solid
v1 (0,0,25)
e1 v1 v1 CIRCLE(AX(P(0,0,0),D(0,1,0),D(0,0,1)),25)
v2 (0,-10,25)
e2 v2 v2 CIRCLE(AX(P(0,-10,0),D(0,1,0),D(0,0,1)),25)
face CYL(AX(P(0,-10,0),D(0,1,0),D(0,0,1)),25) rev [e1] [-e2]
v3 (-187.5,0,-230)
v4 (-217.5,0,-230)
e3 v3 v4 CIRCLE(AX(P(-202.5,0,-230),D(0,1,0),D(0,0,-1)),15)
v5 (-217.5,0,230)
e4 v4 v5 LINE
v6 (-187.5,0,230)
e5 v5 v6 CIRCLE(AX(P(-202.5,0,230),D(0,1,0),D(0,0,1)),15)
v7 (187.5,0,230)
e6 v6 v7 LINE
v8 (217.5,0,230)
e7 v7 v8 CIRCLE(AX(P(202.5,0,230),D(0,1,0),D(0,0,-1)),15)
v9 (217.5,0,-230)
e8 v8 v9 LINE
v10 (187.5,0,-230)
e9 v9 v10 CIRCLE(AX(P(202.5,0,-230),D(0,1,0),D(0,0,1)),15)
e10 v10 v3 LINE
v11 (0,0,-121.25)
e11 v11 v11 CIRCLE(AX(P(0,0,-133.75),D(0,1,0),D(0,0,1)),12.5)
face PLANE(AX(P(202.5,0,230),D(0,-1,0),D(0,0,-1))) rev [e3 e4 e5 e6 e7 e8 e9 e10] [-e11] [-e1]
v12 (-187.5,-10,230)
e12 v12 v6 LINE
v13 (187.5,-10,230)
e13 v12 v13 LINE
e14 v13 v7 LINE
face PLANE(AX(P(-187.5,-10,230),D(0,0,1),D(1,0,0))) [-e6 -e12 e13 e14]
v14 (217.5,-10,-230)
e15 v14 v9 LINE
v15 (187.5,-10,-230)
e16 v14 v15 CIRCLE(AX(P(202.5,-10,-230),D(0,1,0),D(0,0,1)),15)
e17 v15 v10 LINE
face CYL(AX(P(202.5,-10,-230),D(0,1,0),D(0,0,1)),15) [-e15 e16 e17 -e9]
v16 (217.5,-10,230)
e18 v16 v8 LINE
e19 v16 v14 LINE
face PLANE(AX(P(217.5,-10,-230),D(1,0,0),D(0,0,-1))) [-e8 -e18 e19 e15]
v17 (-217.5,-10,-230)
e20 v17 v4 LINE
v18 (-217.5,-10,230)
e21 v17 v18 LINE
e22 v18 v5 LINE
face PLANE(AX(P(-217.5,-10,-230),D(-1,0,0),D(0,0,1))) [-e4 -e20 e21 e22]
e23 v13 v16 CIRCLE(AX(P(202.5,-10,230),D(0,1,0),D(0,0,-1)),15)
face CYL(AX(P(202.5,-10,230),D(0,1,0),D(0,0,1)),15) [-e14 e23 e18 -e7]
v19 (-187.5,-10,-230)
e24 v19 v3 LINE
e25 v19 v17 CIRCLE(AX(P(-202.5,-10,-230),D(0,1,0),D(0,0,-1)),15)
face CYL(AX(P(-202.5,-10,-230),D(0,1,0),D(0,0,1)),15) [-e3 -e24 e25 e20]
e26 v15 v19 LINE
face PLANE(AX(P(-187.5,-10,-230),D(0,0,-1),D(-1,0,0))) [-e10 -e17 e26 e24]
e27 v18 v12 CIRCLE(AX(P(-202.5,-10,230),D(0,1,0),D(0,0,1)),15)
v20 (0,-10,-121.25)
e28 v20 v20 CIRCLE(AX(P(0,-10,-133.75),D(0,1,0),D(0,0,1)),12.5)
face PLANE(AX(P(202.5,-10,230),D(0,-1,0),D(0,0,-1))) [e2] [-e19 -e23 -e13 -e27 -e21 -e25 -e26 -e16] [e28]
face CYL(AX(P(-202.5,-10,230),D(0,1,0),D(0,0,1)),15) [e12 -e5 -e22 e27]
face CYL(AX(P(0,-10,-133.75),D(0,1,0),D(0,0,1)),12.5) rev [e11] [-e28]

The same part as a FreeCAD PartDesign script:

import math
import FreeCAD as App
import Part
import Sketcher
from FreeCAD import Vector

doc = App.newDocument("Part")
body = doc.addObject("PartDesign::Body", "Body")

sketch1 = body.newObject("Sketcher::SketchObject", "Sketch")
sketch1.AttachmentSupport = (doc.getObject("XZ_Plane"), [""])
sketch1.MapMode = "FlatFace"
sketch1.addGeometry([
    Part.LineSegment(Vector(188, -230, 0), Vector(-188, -230, 0)),
    Part.ArcOfCircle(Part.Circle(Vector(-202, -230, 0), Vector(0, 0, 1), 15), math.radians(180), math.radians(360)),
    Part.LineSegment(Vector(-218, -230, 0), Vector(-218, 230, 0)),
    Part.ArcOfCircle(Part.Circle(Vector(-202, 230, 0), Vector(0, 0, 1), 15), math.radians(0), math.radians(180)),
    Part.LineSegment(Vector(-188, 230, 0), Vector(188, 230, 0)),
    Part.ArcOfCircle(Part.Circle(Vector(202, 230, 0), Vector(0, 0, 1), 15), math.radians(0), math.radians(180)),
    Part.LineSegment(Vector(218, 230, 0), Vector(218, -230, 0)),
    Part.ArcOfCircle(Part.Circle(Vector(202, -230, 0), Vector(0, 0, 1), 15), math.radians(180), math.radians(360)),
    Part.Circle(Vector(0, 0, 0), Vector(0, 0, 1), 25),
], False)
sketch1.addConstraint([
    Sketcher.Constraint("Coincident", 0, 2, 1, 2),
    Sketcher.Constraint("Tangent", 1, 1, 2, 1),
    Sketcher.Constraint("Tangent", 2, 2, 3, 2),
    Sketcher.Constraint("Coincident", 3, 1, 4, 1),
    Sketcher.Constraint("Coincident", 4, 2, 5, 2),
    Sketcher.Constraint("Tangent", 5, 1, 6, 1),
    Sketcher.Constraint("Tangent", 6, 2, 7, 2),
    Sketcher.Constraint("Coincident", 7, 1, 0, 1),
    Sketcher.Constraint("Horizontal", 0),
    Sketcher.Constraint("Vertical", 2),
    Sketcher.Constraint("Horizontal", 4),
    Sketcher.Constraint("Vertical", 6),
    Sketcher.Constraint("Coincident", 8, 3, -1, 1),
    Sketcher.Constraint("Equal", 1, 3),
    Sketcher.Constraint("Equal", 3, 5),
    Sketcher.Constraint("Equal", 5, 7),
    Sketcher.Constraint("Symmetric", 1, 3, 5, 3, -1, 1),
    Sketcher.Constraint("Horizontal", 3, 3, 5, 3),
    Sketcher.Constraint("Horizontal", 1, 3, 7, 3),
    Sketcher.Constraint("Horizontal", 7, 3, 0, 2),
    Sketcher.Constraint("Horizontal", 2, 2, 3, 1),
    Sketcher.Constraint("Diameter", 8, 50.0),
    Sketcher.Constraint("Radius", 1, 15.0),
    Sketcher.Constraint("DistanceX", 0, 2, 0, 1, 375.0),
    Sketcher.Constraint("DistanceY", 2, 1, 2, 2, 460.0),
])
pad1 = body.newObject("PartDesign::Pad", "Pad")
pad1.Profile = sketch1
pad1.Length = 10

sketch2 = body.newObject("Sketcher::SketchObject", "Sketch001")
sketch2.AttachmentSupport = (doc.getObject("XZ_Plane"), [""])
sketch2.MapMode = "FlatFace"
sketch2.addGeometry(Part.Circle(Vector(0, -134, 0), Vector(0, 0, 1), 12), False)
sketch2.addConstraint([
    Sketcher.Constraint("PointOnObject", 0, 3, -2),
    Sketcher.Constraint("Diameter", 0, 25.0),
    Sketcher.Constraint("DistanceY", 0, 3, -1, 1, 133.75),
])
pocket1 = body.newObject("PartDesign::Pocket", "Pocket")
pocket1.Profile = sketch2
pocket1.Type = "ThroughAll"
pocket1.Reversed = True

doc.recompute()
